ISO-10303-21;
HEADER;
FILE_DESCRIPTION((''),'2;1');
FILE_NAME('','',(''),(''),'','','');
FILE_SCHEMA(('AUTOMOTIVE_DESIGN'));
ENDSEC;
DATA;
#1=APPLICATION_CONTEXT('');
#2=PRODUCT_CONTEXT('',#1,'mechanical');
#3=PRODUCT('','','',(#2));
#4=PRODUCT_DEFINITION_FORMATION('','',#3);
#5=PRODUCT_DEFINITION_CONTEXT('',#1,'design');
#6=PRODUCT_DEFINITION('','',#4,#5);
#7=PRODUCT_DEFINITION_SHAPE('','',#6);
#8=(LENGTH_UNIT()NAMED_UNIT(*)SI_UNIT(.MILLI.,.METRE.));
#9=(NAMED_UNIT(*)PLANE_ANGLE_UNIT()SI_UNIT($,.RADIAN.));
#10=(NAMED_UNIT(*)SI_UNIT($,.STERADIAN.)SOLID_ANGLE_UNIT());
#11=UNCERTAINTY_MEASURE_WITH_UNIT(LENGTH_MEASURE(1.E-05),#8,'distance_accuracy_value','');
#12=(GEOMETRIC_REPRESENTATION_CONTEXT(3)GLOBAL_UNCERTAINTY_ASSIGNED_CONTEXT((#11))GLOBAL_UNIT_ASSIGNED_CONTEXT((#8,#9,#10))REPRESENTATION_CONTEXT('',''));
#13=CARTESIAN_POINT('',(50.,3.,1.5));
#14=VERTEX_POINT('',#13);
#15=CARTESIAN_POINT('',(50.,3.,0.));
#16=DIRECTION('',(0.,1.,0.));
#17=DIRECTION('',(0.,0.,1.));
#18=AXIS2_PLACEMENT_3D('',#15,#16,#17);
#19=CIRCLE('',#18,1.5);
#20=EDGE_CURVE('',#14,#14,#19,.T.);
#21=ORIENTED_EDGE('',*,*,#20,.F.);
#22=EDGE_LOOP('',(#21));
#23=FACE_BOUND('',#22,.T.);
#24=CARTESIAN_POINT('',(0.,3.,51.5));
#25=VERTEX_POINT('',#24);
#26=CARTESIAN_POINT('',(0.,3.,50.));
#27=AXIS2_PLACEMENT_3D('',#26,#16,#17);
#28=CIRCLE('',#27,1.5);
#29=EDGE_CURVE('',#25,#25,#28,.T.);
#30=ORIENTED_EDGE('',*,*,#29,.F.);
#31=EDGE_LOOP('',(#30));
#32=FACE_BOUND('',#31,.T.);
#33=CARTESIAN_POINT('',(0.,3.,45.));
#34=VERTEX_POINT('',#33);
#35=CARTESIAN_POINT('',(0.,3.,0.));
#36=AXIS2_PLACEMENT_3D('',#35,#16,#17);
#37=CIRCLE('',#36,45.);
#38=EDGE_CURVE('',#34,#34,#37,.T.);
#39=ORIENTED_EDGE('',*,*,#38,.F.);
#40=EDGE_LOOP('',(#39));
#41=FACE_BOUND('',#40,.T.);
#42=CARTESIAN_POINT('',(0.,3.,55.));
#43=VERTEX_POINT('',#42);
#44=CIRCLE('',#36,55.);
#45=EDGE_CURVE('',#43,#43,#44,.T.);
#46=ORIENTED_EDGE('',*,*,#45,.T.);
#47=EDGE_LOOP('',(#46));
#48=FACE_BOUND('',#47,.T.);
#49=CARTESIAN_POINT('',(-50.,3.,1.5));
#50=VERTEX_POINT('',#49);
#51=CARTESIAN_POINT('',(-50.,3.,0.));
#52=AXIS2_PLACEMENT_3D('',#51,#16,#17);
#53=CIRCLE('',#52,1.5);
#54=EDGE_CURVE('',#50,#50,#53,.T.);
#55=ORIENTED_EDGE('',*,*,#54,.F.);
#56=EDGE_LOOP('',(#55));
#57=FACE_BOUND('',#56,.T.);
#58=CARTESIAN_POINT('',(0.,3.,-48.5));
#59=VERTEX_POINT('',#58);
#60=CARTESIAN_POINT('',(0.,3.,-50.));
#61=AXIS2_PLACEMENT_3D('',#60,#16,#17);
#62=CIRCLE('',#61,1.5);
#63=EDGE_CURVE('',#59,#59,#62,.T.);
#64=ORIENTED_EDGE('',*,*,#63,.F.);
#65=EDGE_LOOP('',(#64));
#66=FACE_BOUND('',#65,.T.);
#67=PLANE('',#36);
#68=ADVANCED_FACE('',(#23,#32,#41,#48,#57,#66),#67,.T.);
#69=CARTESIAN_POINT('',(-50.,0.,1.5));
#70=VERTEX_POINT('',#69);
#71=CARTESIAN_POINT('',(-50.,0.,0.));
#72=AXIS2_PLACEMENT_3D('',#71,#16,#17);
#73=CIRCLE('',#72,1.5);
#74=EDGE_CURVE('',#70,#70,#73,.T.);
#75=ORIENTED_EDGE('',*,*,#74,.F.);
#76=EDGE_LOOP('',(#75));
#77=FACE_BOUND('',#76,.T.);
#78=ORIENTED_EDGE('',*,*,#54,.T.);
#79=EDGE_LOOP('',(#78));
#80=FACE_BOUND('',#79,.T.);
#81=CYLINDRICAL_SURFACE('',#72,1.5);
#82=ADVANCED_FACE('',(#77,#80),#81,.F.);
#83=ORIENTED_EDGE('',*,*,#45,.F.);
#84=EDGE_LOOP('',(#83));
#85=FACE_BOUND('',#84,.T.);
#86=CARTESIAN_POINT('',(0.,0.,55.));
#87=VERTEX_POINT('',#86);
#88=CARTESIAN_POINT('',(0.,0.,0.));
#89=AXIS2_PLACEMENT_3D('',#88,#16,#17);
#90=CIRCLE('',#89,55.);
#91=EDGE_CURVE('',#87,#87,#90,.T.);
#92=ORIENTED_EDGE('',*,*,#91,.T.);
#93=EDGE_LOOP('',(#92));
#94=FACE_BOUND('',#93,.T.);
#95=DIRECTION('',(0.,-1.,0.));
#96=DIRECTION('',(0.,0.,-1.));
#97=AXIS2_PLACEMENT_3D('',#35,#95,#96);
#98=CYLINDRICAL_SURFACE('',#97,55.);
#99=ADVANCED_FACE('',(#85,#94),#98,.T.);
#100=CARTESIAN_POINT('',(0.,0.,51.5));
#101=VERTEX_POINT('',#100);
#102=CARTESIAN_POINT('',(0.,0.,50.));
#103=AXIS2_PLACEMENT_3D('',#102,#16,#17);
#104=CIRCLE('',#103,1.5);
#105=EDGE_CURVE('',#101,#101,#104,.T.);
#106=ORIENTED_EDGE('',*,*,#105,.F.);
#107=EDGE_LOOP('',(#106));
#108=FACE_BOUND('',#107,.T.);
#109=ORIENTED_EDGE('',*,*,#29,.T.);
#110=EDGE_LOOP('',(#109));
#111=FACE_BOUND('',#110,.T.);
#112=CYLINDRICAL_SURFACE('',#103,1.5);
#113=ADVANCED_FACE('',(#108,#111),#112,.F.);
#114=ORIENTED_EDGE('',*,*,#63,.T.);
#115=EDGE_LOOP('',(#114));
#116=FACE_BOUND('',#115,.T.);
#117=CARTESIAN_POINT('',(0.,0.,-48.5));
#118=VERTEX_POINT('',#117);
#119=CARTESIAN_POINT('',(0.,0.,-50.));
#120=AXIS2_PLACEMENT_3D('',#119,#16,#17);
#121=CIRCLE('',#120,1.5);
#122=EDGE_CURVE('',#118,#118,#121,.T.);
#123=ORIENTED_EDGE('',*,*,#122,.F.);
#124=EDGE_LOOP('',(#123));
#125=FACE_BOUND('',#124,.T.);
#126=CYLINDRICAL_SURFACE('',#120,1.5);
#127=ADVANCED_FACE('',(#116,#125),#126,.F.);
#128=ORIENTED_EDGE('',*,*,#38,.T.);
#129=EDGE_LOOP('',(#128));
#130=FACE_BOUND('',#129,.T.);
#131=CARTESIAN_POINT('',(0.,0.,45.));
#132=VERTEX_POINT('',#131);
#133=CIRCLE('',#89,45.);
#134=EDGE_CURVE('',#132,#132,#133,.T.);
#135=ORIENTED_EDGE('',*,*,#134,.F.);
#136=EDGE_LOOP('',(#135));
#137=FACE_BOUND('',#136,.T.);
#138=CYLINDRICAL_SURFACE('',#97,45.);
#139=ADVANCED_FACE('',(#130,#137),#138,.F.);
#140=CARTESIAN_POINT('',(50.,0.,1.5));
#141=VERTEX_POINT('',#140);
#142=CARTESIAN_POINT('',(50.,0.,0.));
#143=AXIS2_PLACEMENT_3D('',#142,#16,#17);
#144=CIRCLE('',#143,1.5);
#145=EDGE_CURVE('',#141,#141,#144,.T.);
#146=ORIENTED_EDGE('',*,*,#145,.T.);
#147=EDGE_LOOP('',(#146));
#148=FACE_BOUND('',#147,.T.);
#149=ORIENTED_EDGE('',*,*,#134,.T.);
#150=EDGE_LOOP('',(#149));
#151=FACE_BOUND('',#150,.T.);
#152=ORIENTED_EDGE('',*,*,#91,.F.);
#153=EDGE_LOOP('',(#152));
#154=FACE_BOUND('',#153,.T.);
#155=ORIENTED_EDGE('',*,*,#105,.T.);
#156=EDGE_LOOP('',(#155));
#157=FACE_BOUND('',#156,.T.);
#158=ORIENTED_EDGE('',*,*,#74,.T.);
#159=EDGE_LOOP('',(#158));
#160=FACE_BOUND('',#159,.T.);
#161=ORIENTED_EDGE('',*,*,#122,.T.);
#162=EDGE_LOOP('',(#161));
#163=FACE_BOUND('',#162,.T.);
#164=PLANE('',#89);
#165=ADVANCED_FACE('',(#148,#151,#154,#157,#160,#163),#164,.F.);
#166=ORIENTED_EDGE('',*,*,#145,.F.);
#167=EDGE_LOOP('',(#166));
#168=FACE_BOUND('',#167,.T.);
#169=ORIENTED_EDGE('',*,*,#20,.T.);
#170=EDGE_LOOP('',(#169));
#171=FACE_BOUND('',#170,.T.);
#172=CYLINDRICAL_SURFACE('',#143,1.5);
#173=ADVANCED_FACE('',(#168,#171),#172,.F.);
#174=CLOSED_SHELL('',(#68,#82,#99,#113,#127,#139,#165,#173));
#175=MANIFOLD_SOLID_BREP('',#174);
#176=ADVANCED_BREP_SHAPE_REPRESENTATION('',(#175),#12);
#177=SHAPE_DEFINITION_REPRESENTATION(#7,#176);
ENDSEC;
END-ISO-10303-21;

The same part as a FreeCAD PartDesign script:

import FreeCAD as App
import Part
import Sketcher

doc = App.newDocument("Part")
body = doc.addObject("PartDesign::Body", "Body")

# Sketch on XZ plane
sketch1 = body.newObject("Sketcher::SketchObject", "Sketch")
sketch1.AttachmentSupport = (doc.getObject("XZ_Plane"), [""])
sketch1.MapMode = "FlatFace"
sketch1.addGeometry([
    Part.Circle(App.Vector(0, 0, 0), App.Vector(0, 0, 1), 55),
    Part.Circle(App.Vector(0, 0, 0), App.Vector(0, 0, 1), 45),
], False)
sketch1.addConstraint([
    Sketcher.Constraint("Coincident", 0, 3, -1, 1),
    Sketcher.Constraint("Coincident", 1, 3, -1, 1),
    Sketcher.Constraint("Diameter", 0, 110.0),
    Sketcher.Constraint("Diameter", 1, 90.0),
])
pad1 = body.newObject("PartDesign::Pad", "Pad")
pad1.Profile = sketch1
pad1.Length = 3
pad1.Reversed = True

# Sketch on XZ plane
sketch2 = body.newObject("Sketcher::SketchObject", "Sketch001")
sketch2.AttachmentSupport = (doc.getObject("XZ_Plane"), [""])
sketch2.MapMode = "FlatFace"
sketch2.AttachmentOffset = App.Placement(App.Vector(0, 0, -3), App.Rotation())
sketch2.addGeometry([
    Part.Circle(App.Vector(-50, 0, 0), App.Vector(0, 0, 1), 1.5),
    Part.Circle(App.Vector(0, 50, 0), App.Vector(0, 0, 1), 1.5),
    Part.Circle(App.Vector(50, 0, 0), App.Vector(0, 0, 1), 1.5),
    Part.Circle(App.Vector(0, -50, 0), App.Vector(0, 0, 1), 1.5),
], False)
sketch2.addConstraint([
    Sketcher.Constraint("Equal", 0, 1),
    Sketcher.Constraint("Equal", 1, 2),
    Sketcher.Constraint("Equal", 2, 3),
    Sketcher.Constraint("Symmetric", 0, 3, 2, 3, -1, 1),
    Sketcher.Constraint("Symmetric", 1, 3, 3, 3, -1, 1),
    Sketcher.Constraint("PointOnObject", 0, 3, -1),
    Sketcher.Constraint("PointOnObject", 1, 3, -2),
    Sketcher.Constraint("Diameter", 0, 3.0),
    Sketcher.Constraint("DistanceX", 0, 3, -1, 1, 50.0),
    Sketcher.Constraint("DistanceY", -1, 1, 1, 3, 50.0),
])
pocket1 = body.newObject("PartDesign::Pocket", "Pocket")
pocket1.Profile = sketch2
pocket1.Length = 3
pocket1.Reversed = True

doc.recompute()
